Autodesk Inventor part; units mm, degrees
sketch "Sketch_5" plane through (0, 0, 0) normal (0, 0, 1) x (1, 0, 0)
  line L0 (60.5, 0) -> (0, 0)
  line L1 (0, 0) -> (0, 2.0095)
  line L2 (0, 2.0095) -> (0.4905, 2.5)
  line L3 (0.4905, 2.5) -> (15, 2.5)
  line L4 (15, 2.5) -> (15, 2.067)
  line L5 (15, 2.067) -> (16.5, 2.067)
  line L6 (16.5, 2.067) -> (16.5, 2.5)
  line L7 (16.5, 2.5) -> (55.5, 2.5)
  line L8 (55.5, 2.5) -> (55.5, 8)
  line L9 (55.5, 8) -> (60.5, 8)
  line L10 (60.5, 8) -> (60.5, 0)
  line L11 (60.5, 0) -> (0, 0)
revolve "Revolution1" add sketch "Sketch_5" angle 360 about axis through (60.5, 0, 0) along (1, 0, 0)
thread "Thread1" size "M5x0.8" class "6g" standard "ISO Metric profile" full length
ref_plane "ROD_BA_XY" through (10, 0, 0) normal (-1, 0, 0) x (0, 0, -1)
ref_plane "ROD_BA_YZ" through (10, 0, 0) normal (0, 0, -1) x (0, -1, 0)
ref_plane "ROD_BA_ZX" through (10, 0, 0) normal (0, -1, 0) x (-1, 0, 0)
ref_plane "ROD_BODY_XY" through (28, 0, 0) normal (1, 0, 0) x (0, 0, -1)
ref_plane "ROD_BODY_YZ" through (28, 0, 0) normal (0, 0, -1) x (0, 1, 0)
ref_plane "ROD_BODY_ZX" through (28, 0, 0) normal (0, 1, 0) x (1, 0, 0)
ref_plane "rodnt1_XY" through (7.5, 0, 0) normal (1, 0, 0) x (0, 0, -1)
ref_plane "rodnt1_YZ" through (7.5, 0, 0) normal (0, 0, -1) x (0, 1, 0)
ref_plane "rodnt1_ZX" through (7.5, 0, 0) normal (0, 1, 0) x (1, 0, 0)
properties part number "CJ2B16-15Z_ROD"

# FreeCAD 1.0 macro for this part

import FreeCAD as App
import Part
import Sketcher
from FreeCAD import Vector
Q = App.Units.Quantity


def add_polygon(sketch, points):
    """Adds a closed chain of lines whose ends are joined by coincident constraints."""
    first, n = sketch.GeometryCount, len(points)
    for a, b in zip(points, points[1:] + points[:1]):
        sketch.addGeometry(Part.LineSegment(App.Vector(*a, 0), App.Vector(*b, 0)), False)
    for i in range(n):
        sketch.addConstraint(Sketcher.Constraint("Coincident", first + i, 2, first + (i + 1) % n, 1))

doc = App.newDocument("Part")
body = doc.addObject("PartDesign::Body", "Body")

# Sketch on XY plane
sketch1 = body.newObject("Sketcher::SketchObject", "Sketch")
sketch1.AttachmentSupport = (doc.getObject("XY_Plane"), [""])
sketch1.MapMode = "FlatFace"
add_polygon(sketch1, [(0, 0), (60.5, 0), (60.5, 8), (55.5, 8), (55.5, 2.5), (16.5, 2.5), (16.5, 2.07), (15, 2.07), (15, 2.5), (0.49, 2.5), (0, 2.01)])  # lines 0-10
sketch1.addConstraint(Sketcher.Constraint("Horizontal", 0))
sketch1.addConstraint(Sketcher.Constraint("Vertical", 1))
sketch1.addConstraint(Sketcher.Constraint("Horizontal", 2))
sketch1.addConstraint(Sketcher.Constraint("Vertical", 3))
sketch1.addConstraint(Sketcher.Constraint("Horizontal", 4))
sketch1.addConstraint(Sketcher.Constraint("Vertical", 5))
sketch1.addConstraint(Sketcher.Constraint("Horizontal", 6))
sketch1.addConstraint(Sketcher.Constraint("Vertical", 7))
sketch1.addConstraint(Sketcher.Constraint("Horizontal", 8))
sketch1.addConstraint(Sketcher.Constraint("Vertical", 10))
sketch1.addConstraint(Sketcher.Constraint("Coincident", 10, 2, -1, 1))
sketch1.addConstraint(Sketcher.Constraint("Horizontal", 4, 2, 7, 2))
sketch1.addConstraint(Sketcher.Constraint("DistanceX", 2, 2, 2, 1, Q("5 mm")))
sketch1.addConstraint(Sketcher.Constraint("DistanceX", 4, 2, 4, 1, Q("39 mm")))
sketch1.addConstraint(Sketcher.Constraint("DistanceY", 1, 1, 1, 2, Q("8 mm")))
sketch1.addConstraint(Sketcher.Constraint("Angle", 9, Q("-135 deg")))
sketch1.addConstraint(Sketcher.Constraint("DistanceX", 0, 1, 0, 2, Q("60.5 mm")))
sketch1.addConstraint(Sketcher.Constraint("DistanceX", 6, 2, 6, 1, Q("1.5 mm")))
sketch1.addConstraint(Sketcher.Constraint("DistanceY", 3, 2, 3, 1, Q("5.5 mm")))
sketch1.addConstraint(Sketcher.Constraint("DistanceY", 5, 2, 5, 1, Q("0.433 mm")))
sketch1.addConstraint(Sketcher.Constraint("DistanceX", 8, 2, 8, 1, Q("14.5095 mm")))
revolution = body.newObject("PartDesign::Revolution", "Revolution")
revolution.Profile = sketch1
revolution.ReferenceAxis = (sketch1, ["H_Axis"])
revolution.Angle = 360

doc.recompute()
